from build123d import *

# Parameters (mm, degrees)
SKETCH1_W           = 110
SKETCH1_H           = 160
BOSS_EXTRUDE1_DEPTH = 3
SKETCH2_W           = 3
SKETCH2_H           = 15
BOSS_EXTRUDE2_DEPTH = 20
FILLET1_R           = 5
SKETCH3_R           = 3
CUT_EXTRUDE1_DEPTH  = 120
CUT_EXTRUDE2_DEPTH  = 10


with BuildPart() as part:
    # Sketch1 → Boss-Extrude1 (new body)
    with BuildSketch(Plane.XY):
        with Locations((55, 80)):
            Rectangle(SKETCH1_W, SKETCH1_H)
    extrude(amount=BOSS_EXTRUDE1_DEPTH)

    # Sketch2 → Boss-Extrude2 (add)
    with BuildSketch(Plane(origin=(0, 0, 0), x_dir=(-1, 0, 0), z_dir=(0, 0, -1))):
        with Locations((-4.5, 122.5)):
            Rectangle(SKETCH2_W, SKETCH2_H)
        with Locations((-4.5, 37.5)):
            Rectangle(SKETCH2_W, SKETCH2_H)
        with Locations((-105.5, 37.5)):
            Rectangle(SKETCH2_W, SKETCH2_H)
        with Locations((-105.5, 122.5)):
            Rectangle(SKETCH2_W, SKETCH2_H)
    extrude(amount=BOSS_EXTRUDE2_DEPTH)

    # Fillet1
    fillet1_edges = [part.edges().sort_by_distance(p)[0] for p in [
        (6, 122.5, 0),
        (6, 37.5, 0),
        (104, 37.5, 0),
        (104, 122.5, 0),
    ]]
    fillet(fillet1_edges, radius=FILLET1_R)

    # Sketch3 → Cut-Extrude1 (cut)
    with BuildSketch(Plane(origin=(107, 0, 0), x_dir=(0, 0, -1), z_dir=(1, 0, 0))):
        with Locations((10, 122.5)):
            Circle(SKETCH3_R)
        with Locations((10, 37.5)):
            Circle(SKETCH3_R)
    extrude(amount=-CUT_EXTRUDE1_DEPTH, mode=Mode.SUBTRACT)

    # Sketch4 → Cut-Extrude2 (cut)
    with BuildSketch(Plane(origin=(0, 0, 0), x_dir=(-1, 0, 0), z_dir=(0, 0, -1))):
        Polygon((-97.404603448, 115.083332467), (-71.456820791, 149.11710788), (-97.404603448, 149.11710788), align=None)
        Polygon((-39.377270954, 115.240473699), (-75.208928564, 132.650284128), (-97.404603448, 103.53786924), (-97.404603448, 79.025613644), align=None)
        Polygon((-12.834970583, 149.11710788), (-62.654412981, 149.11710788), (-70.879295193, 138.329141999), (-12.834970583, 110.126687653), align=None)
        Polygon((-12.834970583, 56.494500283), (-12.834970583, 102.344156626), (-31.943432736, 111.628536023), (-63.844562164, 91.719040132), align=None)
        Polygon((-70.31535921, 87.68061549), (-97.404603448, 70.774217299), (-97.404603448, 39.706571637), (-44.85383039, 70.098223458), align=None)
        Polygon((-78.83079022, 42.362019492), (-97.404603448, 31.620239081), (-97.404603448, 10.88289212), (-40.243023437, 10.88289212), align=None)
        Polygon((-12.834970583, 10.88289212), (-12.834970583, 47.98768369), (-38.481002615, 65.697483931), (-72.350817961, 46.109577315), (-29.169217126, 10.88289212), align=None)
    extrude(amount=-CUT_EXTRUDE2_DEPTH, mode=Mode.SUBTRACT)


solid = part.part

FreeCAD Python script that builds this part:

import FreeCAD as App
import Part
import Sketcher


def edges_at(feature, points):
    """Names of the edges that pass closest to the given points."""
    edges = feature.Shape.Edges
    near = lambda p: min(range(len(edges)), key=lambda i: edges[i].distToShape(Part.Vertex(*p))[0])
    return sorted({f"Edge{near(p) + 1}" for p in points})

doc = App.newDocument("Part")
body = doc.addObject("PartDesign::Body", "Body")

sketch1 = doc.addObject("Sketcher::SketchObject", "Sketch")
body.addObject(sketch1)
sketch1.AttachmentSupport = (doc.XY_Plane, [""])
sketch1.MapMode = "FlatFace"
sketch1.addGeometry([
    Part.LineSegment(App.Vector(0, 160, 0), App.Vector(0, 0, 0)),
    Part.LineSegment(App.Vector(0, 0, 0), App.Vector(110, 0, 0)),
    Part.LineSegment(App.Vector(110, 0, 0), App.Vector(110, 160, 0)),
    Part.LineSegment(App.Vector(110, 160, 0), App.Vector(0, 160, 0)),
], False)
sketch1.addConstraint([
    Sketcher.Constraint("Coincident", 0, 2, 1, 1),
    Sketcher.Constraint("Coincident", 1, 2, 2, 1),
    Sketcher.Constraint("Coincident", 2, 2, 3, 1),
    Sketcher.Constraint("Coincident", 3, 2, 0, 1),
    Sketcher.Constraint("Vertical", 0),
    Sketcher.Constraint("Horizontal", 1),
    Sketcher.Constraint("Vertical", 2),
    Sketcher.Constraint("Horizontal", 3),
    Sketcher.Constraint("Coincident", 0, 2, -1, 1),
    Sketcher.Constraint("DistanceX", 1, 1, 1, 2, 110.0),
    Sketcher.Constraint("DistanceY", 0, 2, 0, 1, 160.0),
])
pad1 = doc.addObject("PartDesign::Pad", "Pad")
body.addObject(pad1)
pad1.Profile = sketch1
pad1.Length = 3

sketch2 = doc.addObject("Sketcher::SketchObject", "Sketch001")
body.addObject(sketch2)
sketch2.AttachmentSupport = (doc.XY_Plane, [""])
sketch2.MapMode = "FlatFace"
sketch2.addGeometry([
    Part.LineSegment(App.Vector(6, 130, 0), App.Vector(6, 115, 0)),
    Part.LineSegment(App.Vector(6, 115, 0), App.Vector(3, 115, 0)),
    Part.LineSegment(App.Vector(3, 115, 0), App.Vector(3, 130, 0)),
    Part.LineSegment(App.Vector(3, 130, 0), App.Vector(6, 130, 0)),
    Part.LineSegment(App.Vector(6, 45, 0), App.Vector(6, 30, 0)),
    Part.LineSegment(App.Vector(6, 30, 0), App.Vector(3, 30, 0)),
    Part.LineSegment(App.Vector(3, 30, 0), App.Vector(3, 45, 0)),
    Part.LineSegment(App.Vector(3, 45, 0), App.Vector(6, 45, 0)),
    Part.LineSegment(App.Vector(107, 45, 0), App.Vector(107, 30, 0)),
    Part.LineSegment(App.Vector(107, 30, 0), App.Vector(104, 30, 0)),
    Part.LineSegment(App.Vector(104, 30, 0), App.Vector(104, 45, 0)),
    Part.LineSegment(App.Vector(104, 45, 0), App.Vector(107, 45, 0)),
    Part.LineSegment(App.Vector(107, 130, 0), App.Vector(107, 115, 0)),
    Part.LineSegment(App.Vector(107, 115, 0), App.Vector(104, 115, 0)),
    Part.LineSegment(App.Vector(104, 115, 0), App.Vector(104, 130, 0)),
    Part.LineSegment(App.Vector(104, 130, 0), App.Vector(107, 130, 0)),
], False)
sketch2.addConstraint([
    Sketcher.Constraint("Coincident", 0, 2, 1, 1),
    Sketcher.Constraint("Coincident", 1, 2, 2, 1),
    Sketcher.Constraint("Coincident", 2, 2, 3, 1),
    Sketcher.Constraint("Coincident", 3, 2, 0, 1),
    Sketcher.Constraint("Coincident", 4, 2, 5, 1),
    Sketcher.Constraint("Coincident", 5, 2, 6, 1),
    Sketcher.Constraint("Coincident", 6, 2, 7, 1),
    Sketcher.Constraint("Coincident", 7, 2, 4, 1),
    Sketcher.Constraint("Coincident", 8, 2, 9, 1),
    Sketcher.Constraint("Coincident", 9, 2, 10, 1),
    Sketcher.Constraint("Coincident", 10, 2, 11, 1),
    Sketcher.Constraint("Coincident", 11, 2, 8, 1),
    Sketcher.Constraint("Coincident", 12, 2, 13, 1),
    Sketcher.Constraint("Coincident", 13, 2, 14, 1),
    Sketcher.Constraint("Coincident", 14, 2, 15, 1),
    Sketcher.Constraint("Coincident", 15, 2, 12, 1),
    Sketcher.Constraint("Vertical", 0),
    Sketcher.Constraint("Horizontal", 1),
    Sketcher.Constraint("Vertical", 2),
    Sketcher.Constraint("Horizontal", 3),
    Sketcher.Constraint("Vertical", 4),
    Sketcher.Constraint("Horizontal", 5),
    Sketcher.Constraint("Vertical", 6),
    Sketcher.Constraint("Horizontal", 7),
    Sketcher.Constraint("Vertical", 8),
    Sketcher.Constraint("Horizontal", 9),
    Sketcher.Constraint("Vertical", 10),
    Sketcher.Constraint("Horizontal", 11),
    Sketcher.Constraint("Vertical", 12),
    Sketcher.Constraint("Horizontal", 13),
    Sketcher.Constraint("Vertical", 14),
    Sketcher.Constraint("Horizontal", 15),
    Sketcher.Constraint("Horizontal", 5, 2, 8, 2),
    Sketcher.Constraint("Horizontal", 7, 2, 10, 2),
    Sketcher.Constraint("Horizontal", 1, 2, 12, 2),
    Sketcher.Constraint("Horizontal", 3, 2, 14, 2),
    Sketcher.Constraint("Vertical", 3, 2, 4, 2),
    Sketcher.Constraint("Vertical", 2, 2, 5, 2),
    Sketcher.Constraint("Vertical", 11, 2, 12, 2),
    Sketcher.Constraint("Vertical", 10, 2, 13, 2),
    Sketcher.Constraint("Equal", 7, 9),
    Sketcher.Constraint("Equal", 2, 4),
    Sketcher.Constraint("DistanceX", 1, 2, 1, 1, 3.0),
    Sketcher.Constraint("DistanceY", 0, 2, 0, 1, 15.0),
    Sketcher.Constraint("DistanceX", -1, 1, 0, 2, 6.0),
    Sketcher.Constraint("DistanceY", -1, 1, 0, 2, 115.0),
    Sketcher.Constraint("DistanceY", -1, 1, 4, 2, 30.0),
    Sketcher.Constraint("DistanceX", -1, 1, 8, 2, 107.0),
])
pad2 = doc.addObject("PartDesign::Pad", "Pad001")
body.addObject(pad2)
pad2.Profile = sketch2
pad2.Length = 20
pad2.Reversed = True
doc.recompute()

fillet = doc.addObject("PartDesign::Fillet", "Fillet")
body.addObject(fillet)
fillet.Base = (pad2, edges_at(pad2, [
    (6, 122.5, 0),
    (6, 37.5, 0),
    (104, 37.5, 0),
    (104, 122.5, 0),
]))
fillet.Radius = 5

sketch3 = doc.addObject("Sketcher::SketchObject", "Sketch002")
body.addObject(sketch3)
sketch3.AttachmentSupport = (doc.YZ_Plane, [""])
sketch3.MapMode = "FlatFace"
sketch3.AttachmentOffset = App.Placement(App.Vector(0, 0, 107), App.Rotation())
sketch3.addGeometry([
    Part.Circle(App.Vector(122.5, -10, 0), App.Vector(0, 0, 1), 3),
    Part.Circle(App.Vector(37.5, -10, 0), App.Vector(0, 0, 1), 3),
], False)
sketch3.addConstraint([
    Sketcher.Constraint("Equal", 0, 1),
    Sketcher.Constraint("Horizontal", 0, 3, 1, 3),
    Sketcher.Constraint("Diameter", 0, 6.0),
    Sketcher.Constraint("DistanceY", 0, 3, -1, 1, 10.0),
    Sketcher.Constraint("DistanceX", 1, 3, 0, 3, 85.0),
    Sketcher.Constraint("DistanceX", -1, 1, 0, 3, 122.5),
])
pocket1 = doc.addObject("PartDesign::Pocket", "Pocket")
body.addObject(pocket1)
pocket1.Profile = sketch3
pocket1.Length = 120

sketch4 = doc.addObject("Sketcher::SketchObject", "Sketch003")
body.addObject(sketch4)
sketch4.AttachmentSupport = (doc.XY_Plane, [""])
sketch4.MapMode = "FlatFace"
sketch4.addGeometry([
    Part.LineSegment(App.Vector(97, 115, 0), App.Vector(71, 149, 0)),
    Part.LineSegment(App.Vector(71, 149, 0), App.Vector(97, 149, 0)),
    Part.LineSegment(App.Vector(97, 149, 0), App.Vector(97, 115, 0)),
    Part.LineSegment(App.Vector(39, 115, 0), App.Vector(75, 133, 0)),
    Part.LineSegment(App.Vector(75, 133, 0), App.Vector(97, 104, 0)),
    Part.LineSegment(App.Vector(97, 104, 0), App.Vector(97, 79, 0)),
    Part.LineSegment(App.Vector(97, 79, 0), App.Vector(39, 115, 0)),
    Part.LineSegment(App.Vector(13, 149, 0), App.Vector(63, 149, 0)),
    Part.LineSegment(App.Vector(63, 149, 0), App.Vector(71, 138, 0)),
    Part.LineSegment(App.Vector(71, 138, 0), App.Vector(13, 110, 0)),
    Part.LineSegment(App.Vector(13, 110, 0), App.Vector(13, 149, 0)),
    Part.LineSegment(App.Vector(13, 56, 0), App.Vector(13, 102, 0)),
    Part.LineSegment(App.Vector(13, 102, 0), App.Vector(32, 112, 0)),
    Part.LineSegment(App.Vector(32, 112, 0), App.Vector(64, 92, 0)),
    Part.LineSegment(App.Vector(64, 92, 0), App.Vector(13, 56, 0)),
    Part.LineSegment(App.Vector(70, 88, 0), App.Vector(97, 71, 0)),
    Part.LineSegment(App.Vector(97, 71, 0), App.Vector(97, 40, 0)),
    Part.LineSegment(App.Vector(97, 40, 0), App.Vector(45, 70, 0)),
    Part.LineSegment(App.Vector(45, 70, 0), App.Vector(70, 88, 0)),
    Part.LineSegment(App.Vector(79, 42, 0), App.Vector(97, 32, 0)),
    Part.LineSegment(App.Vector(97, 32, 0), App.Vector(97, 11, 0)),
    Part.LineSegment(App.Vector(97, 11, 0), App.Vector(40, 11, 0)),
    Part.LineSegment(App.Vector(40, 11, 0), App.Vector(79, 42, 0)),
    Part.LineSegment(App.Vector(13, 11, 0), App.Vector(13, 48, 0)),
    Part.LineSegment(App.Vector(13, 48, 0), App.Vector(38, 66, 0)),
    Part.LineSegment(App.Vector(38, 66, 0), App.Vector(72, 46, 0)),
    Part.LineSegment(App.Vector(72, 46, 0), App.Vector(29, 11, 0)),
    Part.LineSegment(App.Vector(29, 11, 0), App.Vector(13, 11, 0)),
], False)
sketch4.addConstraint([
    Sketcher.Constraint("Coincident", 0, 2, 1, 1),
    Sketcher.Constraint("Coincident", 1, 2, 2, 1),
    Sketcher.Constraint("Coincident", 2, 2, 0, 1),
    Sketcher.Constraint("Coincident", 3, 2, 4, 1),
    Sketcher.Constraint("Coincident", 4, 2, 5, 1),
    Sketcher.Constraint("Coincident", 5, 2, 6, 1),
    Sketcher.Constraint("Coincident", 6, 2, 3, 1),
    Sketcher.Constraint("Coincident", 7, 2, 8, 1),
    Sketcher.Constraint("Coincident", 8, 2, 9, 1),
    Sketcher.Constraint("Coincident", 9, 2, 10, 1),
    Sketcher.Constraint("Coincident", 10, 2, 7, 1),
    Sketcher.Constraint("Coincident", 11, 2, 12, 1),
    Sketcher.Constraint("Coincident", 12, 2, 13, 1),
    Sketcher.Constraint("Coincident", 13, 2, 14, 1),
    Sketcher.Constraint("Coincident", 14, 2, 11, 1),
    Sketcher.Constraint("Coincident", 15, 2, 16, 1),
    Sketcher.Constraint("Coincident", 16, 2, 17, 1),
    Sketcher.Constraint("Coincident", 17, 2, 18, 1),
    Sketcher.Constraint("Coincident", 18, 2, 15, 1),
    Sketcher.Constraint("Coincident", 19, 2, 20, 1),
    Sketcher.Constraint("Coincident", 20, 2, 21, 1),
    Sketcher.Constraint("Coincident", 21, 2, 22, 1),
    Sketcher.Constraint("Coincident", 22, 2, 19, 1),
    Sketcher.Constraint("Coincident", 23, 2, 24, 1),
    Sketcher.Constraint("Coincident", 24, 2, 25, 1),
    Sketcher.Constraint("Coincident", 25, 2, 26, 1),
    Sketcher.Constraint("Coincident", 26, 2, 27, 1),
    Sketcher.Constraint("Coincident", 27, 2, 23, 1),
    Sketcher.Constraint("Horizontal", 1),
    Sketcher.Constraint("Vertical", 2),
    Sketcher.Constraint("Vertical", 5),
    Sketcher.Constraint("Horizontal", 7),
    Sketcher.Constraint("Vertical", 10),
    Sketcher.Constraint("Vertical", 11),
    Sketcher.Constraint("Vertical", 16),
    Sketcher.Constraint("Vertical", 20),
    Sketcher.Constraint("Horizontal", 21),
    Sketcher.Constraint("Vertical", 23),
    Sketcher.Constraint("Horizontal", 27),
    Sketcher.Constraint("Parallel", 0, 4),
    Sketcher.Constraint("Parallel", 4, 8),
    Sketcher.Constraint("Parallel", 3, 9),
    Sketcher.Constraint("Parallel", 9, 12),
    Sketcher.Constraint("Parallel", 6, 13),
    Sketcher.Constraint("Parallel", 13, 15),
    Sketcher.Constraint("Parallel", 14, 18),
    Sketcher.Constraint("Parallel", 17, 19),
    Sketcher.Constraint("Parallel", 18, 24),
    Sketcher.Constraint("Parallel", 19, 25),
    Sketcher.Constraint("Parallel", 22, 26),
    Sketcher.Constraint("Horizontal", 1, 2, 7, 2),
    Sketcher.Constraint("Horizontal", 21, 2, 26, 2),
    Sketcher.Constraint("Vertical", 2, 2, 4, 2),
    Sketcher.Constraint("Vertical", 10, 2, 11, 2),
    Sketcher.Constraint("Vertical", 5, 2, 15, 2),
    Sketcher.Constraint("Vertical", 16, 2, 19, 2),
    Sketcher.Constraint("Vertical", 14, 2, 23, 2),
    Sketcher.Constraint("DistanceY", 5, 2, 18, 2, 8.655002),
    Sketcher.Constraint("Distance", 12, 21.2446),
    Sketcher.Constraint("DistanceX", 21, 2, 21, 1, 57.16158),
    Sketcher.Constraint("DistanceY", 10, 1, 10, 2, 38.99042),
    Sketcher.Constraint("DistanceY", 23, 1, 23, 2, 37.104792),
    Sketcher.Constraint("DistanceY", -1, 1, 14, 2, 56.4945),
    Sketcher.Constraint("DistanceX", 9, 2, 6, 2, 26.5423),
    Sketcher.Constraint("DistanceY", 15, 2, 18, 2, 16.906398),
    Sketcher.Constraint("DistanceY", 23, 2, 24, 2, 17.7098),
    Sketcher.Constraint("DistanceX", 26, 2, 25, 2, 43.181601),
    Sketcher.Constraint("Distance", 4, 36.608478),
    Sketcher.Constraint("Distance", 6, 68.400931),
    Sketcher.Constraint("Distance", 9, 64.533108),
    Sketcher.Constraint("Distance", 14, 61.989891),
    Sketcher.Constraint("Distance", 19, 21.45629),
    Sketcher.Constraint("Distance", 22, 49.799108),
    Sketcher.Constraint("Distance", 26, 55.727641),
    Sketcher.Constraint("DistanceX", 1, 1, 1, 2, 25.947783),
    Sketcher.Constraint("DistanceX", 7, 1, 7, 2, 49.819442),
    Sketcher.Constraint("DistanceX", 27, 2, 27, 1, 16.334247),
    Sketcher.Constraint("DistanceY", 2, 2, 2, 1, 34.033775),
    Sketcher.Constraint("DistanceY", 5, 2, 5, 1, 24.512256),
    Sketcher.Constraint("DistanceY", 16, 2, 16, 1, 31.067646),
    Sketcher.Constraint("DistanceX", -1, 1, 0, 2, 71.456821),
    Sketcher.Constraint("DistanceY", -1, 1, 4, 2, 103.537869),
    Sketcher.Constraint("DistanceY", -1, 1, 8, 2, 138.329142),
    Sketcher.Constraint("DistanceY", -1, 1, 19, 2, 31.620239),
])
pocket2 = doc.addObject("PartDesign::Pocket", "Pocket001")
body.addObject(pocket2)
pocket2.Profile = sketch4
pocket2.Length = 10
pocket2.Reversed = True

doc.recompute()
